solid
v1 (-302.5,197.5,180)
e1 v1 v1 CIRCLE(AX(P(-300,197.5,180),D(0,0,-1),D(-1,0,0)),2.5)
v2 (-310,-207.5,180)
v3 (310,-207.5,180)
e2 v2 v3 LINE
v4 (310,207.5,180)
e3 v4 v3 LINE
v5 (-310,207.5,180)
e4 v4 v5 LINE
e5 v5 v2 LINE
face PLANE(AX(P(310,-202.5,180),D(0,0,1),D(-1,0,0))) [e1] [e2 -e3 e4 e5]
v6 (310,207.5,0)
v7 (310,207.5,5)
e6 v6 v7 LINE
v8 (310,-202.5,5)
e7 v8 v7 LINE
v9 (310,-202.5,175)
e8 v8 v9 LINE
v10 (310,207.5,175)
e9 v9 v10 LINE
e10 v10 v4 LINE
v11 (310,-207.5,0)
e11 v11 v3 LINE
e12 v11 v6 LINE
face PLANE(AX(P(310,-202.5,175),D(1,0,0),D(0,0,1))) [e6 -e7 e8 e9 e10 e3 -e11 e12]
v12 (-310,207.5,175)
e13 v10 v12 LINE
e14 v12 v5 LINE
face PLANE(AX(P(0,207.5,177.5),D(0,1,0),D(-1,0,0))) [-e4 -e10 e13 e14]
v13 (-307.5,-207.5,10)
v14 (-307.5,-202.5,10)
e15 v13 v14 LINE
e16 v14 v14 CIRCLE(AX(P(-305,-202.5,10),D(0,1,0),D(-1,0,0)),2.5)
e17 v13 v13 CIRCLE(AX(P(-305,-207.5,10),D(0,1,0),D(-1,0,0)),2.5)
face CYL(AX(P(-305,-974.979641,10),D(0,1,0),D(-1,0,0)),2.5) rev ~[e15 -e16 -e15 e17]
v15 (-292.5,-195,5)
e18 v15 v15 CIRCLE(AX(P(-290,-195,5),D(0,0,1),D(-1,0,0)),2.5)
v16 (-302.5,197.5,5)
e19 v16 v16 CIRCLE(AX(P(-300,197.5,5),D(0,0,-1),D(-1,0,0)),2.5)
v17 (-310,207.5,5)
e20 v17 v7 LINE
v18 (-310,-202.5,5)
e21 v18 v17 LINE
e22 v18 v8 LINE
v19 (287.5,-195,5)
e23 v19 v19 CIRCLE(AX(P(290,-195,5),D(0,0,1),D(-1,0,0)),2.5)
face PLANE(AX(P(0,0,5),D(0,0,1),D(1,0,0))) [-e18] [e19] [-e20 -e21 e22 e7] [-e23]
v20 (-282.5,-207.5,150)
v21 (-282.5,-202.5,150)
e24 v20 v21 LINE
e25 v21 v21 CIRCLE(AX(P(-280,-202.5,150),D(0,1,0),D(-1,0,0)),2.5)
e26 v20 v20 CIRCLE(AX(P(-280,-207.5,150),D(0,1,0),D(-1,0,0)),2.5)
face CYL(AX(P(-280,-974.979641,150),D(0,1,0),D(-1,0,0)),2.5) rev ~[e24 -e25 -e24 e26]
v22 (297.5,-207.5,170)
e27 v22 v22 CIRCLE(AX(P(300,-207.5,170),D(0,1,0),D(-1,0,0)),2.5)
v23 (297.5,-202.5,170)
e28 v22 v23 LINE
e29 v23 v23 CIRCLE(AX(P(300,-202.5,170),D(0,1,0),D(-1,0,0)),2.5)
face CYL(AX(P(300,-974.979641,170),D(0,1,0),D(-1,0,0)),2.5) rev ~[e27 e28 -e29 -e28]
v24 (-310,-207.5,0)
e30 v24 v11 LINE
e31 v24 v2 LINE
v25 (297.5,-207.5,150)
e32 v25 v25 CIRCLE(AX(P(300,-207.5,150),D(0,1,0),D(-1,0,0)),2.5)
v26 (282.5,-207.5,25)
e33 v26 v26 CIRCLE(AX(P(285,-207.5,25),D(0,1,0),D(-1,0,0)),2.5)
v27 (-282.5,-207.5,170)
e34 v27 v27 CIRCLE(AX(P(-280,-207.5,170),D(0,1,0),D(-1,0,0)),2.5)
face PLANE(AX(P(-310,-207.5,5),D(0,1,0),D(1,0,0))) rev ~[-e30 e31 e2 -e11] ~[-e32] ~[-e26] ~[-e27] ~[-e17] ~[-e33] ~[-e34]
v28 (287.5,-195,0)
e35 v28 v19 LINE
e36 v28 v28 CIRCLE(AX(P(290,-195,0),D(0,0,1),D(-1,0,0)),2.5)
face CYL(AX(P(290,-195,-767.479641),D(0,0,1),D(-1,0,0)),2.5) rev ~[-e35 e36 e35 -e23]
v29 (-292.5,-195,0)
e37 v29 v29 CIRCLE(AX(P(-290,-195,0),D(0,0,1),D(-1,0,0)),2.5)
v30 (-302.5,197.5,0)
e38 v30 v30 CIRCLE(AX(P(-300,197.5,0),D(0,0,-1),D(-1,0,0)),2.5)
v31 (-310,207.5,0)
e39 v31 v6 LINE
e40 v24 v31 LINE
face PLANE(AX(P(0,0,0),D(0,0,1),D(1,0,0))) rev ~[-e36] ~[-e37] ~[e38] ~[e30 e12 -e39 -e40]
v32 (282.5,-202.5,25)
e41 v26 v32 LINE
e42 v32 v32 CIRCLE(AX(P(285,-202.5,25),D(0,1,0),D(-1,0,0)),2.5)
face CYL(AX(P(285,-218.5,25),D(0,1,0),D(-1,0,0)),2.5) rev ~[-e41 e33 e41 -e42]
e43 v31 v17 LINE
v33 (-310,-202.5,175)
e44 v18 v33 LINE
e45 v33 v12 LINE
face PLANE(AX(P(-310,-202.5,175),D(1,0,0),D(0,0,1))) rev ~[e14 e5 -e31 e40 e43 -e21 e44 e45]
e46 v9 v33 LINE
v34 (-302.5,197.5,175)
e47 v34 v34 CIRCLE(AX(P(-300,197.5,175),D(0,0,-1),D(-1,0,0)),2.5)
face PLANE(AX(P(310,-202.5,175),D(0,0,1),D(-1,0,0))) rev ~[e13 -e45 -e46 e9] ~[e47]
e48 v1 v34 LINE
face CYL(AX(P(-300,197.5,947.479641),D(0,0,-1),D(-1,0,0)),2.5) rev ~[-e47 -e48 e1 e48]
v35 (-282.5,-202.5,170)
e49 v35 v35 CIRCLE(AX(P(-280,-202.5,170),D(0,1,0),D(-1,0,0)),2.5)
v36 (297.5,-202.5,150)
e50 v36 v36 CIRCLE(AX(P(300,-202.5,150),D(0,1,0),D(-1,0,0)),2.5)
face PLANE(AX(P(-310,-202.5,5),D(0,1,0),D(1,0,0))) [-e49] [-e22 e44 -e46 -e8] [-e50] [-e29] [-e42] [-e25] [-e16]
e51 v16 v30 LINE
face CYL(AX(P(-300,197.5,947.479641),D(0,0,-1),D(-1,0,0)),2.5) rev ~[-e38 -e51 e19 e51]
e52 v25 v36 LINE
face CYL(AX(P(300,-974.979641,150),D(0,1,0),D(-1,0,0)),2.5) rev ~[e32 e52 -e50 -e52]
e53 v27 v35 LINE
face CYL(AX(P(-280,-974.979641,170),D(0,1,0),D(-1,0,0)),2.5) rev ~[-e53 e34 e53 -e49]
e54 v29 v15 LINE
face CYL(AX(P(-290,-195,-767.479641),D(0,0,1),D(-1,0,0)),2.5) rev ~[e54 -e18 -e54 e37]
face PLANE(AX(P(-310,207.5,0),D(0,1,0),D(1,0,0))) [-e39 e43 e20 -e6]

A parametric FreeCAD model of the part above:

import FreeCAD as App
import Part
import Sketcher
from FreeCAD import Vector
Q = App.Units.Quantity

doc = App.newDocument("Part")
body = doc.addObject("PartDesign::Body", "Body")

# Sketch on XY plane
sketch1 = body.newObject("Sketcher::SketchObject", "Sketch")
sketch1.AttachmentSupport = (doc.getObject("XY_Plane"), [""])
sketch1.MapMode = "FlatFace"
sketch1.addGeometry([
    Part.LineSegment(Vector(-310, 208, 0), Vector(-310, -208, 0)),
    Part.LineSegment(Vector(-310, -208, 0), Vector(310, -208, 0)),
    Part.LineSegment(Vector(310, -208, 0), Vector(310, 208, 0)),
    Part.LineSegment(Vector(310, 208, 0), Vector(-310, 208, 0)),
], False)
sketch1.addConstraint([
    Sketcher.Constraint("Coincident", 0, 2, 1, 1),
    Sketcher.Constraint("Coincident", 1, 2, 2, 1),
    Sketcher.Constraint("Coincident", 2, 2, 3, 1),
    Sketcher.Constraint("Coincident", 3, 2, 0, 1),
    Sketcher.Constraint("Vertical", 0),
    Sketcher.Constraint("Horizontal", 1),
    Sketcher.Constraint("Vertical", 2),
    Sketcher.Constraint("Horizontal", 3),
    Sketcher.Constraint("Symmetric", 0, 2, 2, 2, -1, 1),
    Sketcher.Constraint("DistanceX", 1, 1, 1, 2, Q("620 mm")),
    Sketcher.Constraint("DistanceY", 0, 2, 0, 1, Q("415 mm")),
])
pad1 = body.newObject("PartDesign::Pad", "Pad")
pad1.Profile = sketch1
pad1.Length = 5

# Sketch on XY plane
sketch2 = body.newObject("Sketcher::SketchObject", "Sketch001")
sketch2.AttachmentSupport = (doc.getObject("XY_Plane"), [""])
sketch2.MapMode = "FlatFace"
sketch2.AttachmentOffset = App.Placement(Vector(0, 0, 5), App.Rotation())
sketch2.addGeometry([
    Part.LineSegment(Vector(-310, -202, 0), Vector(-310, -208, 0)),
    Part.LineSegment(Vector(-310, -208, 0), Vector(310, -208, 0)),
    Part.LineSegment(Vector(310, -208, 0), Vector(310, -202, 0)),
    Part.LineSegment(Vector(310, -202, 0), Vector(-310, -202, 0)),
], False)
sketch2.addConstraint([
    Sketcher.Constraint("Coincident", 0, 2, 1, 1),
    Sketcher.Constraint("Coincident", 1, 2, 2, 1),
    Sketcher.Constraint("Coincident", 2, 2, 3, 1),
    Sketcher.Constraint("Coincident", 3, 2, 0, 1),
    Sketcher.Constraint("Vertical", 0),
    Sketcher.Constraint("Horizontal", 1),
    Sketcher.Constraint("Vertical", 2),
    Sketcher.Constraint("Horizontal", 3),
    Sketcher.Constraint("DistanceX", 1, 1, 1, 2, Q("620 mm")),
    Sketcher.Constraint("DistanceY", 0, 2, 0, 1, Q("5 mm")),
    Sketcher.Constraint("DistanceX", 0, 2, -1, 1, Q("310 mm")),
    Sketcher.Constraint("DistanceY", 0, 2, -1, 1, Q("207.5 mm")),
])
pad2 = body.newObject("PartDesign::Pad", "Pad001")
pad2.Profile = sketch2
pad2.Length = 175

# Sketch on XZ plane
sketch3 = body.newObject("Sketcher::SketchObject", "Sketch002")
sketch3.AttachmentSupport = (doc.getObject("XZ_Plane"), [""])
sketch3.MapMode = "FlatFace"
sketch3.AttachmentOffset = App.Placement(Vector(0, 0, 207.5), App.Rotation())
sketch3.addGeometry(Part.Circle(Vector(300, 170, 0), Vector(0, 0, 1), 2.5), False)
sketch3.addConstraint([
    Sketcher.Constraint("Diameter", 0, Q("5 mm")),
    Sketcher.Constraint("DistanceX", -1, 1, 0, 3, Q("300 mm")),
    Sketcher.Constraint("DistanceY", -1, 1, 0, 3, Q("170 mm")),
])
doc.recompute()
hole = body.newObject("PartDesign::Hole", "Hole")
hole.Profile = sketch3
hole.ThreadType = "None"
hole.Diameter = 5
hole.DepthType = "ThroughAll"

# Sketch on XZ plane
sketch4 = body.newObject("Sketcher::SketchObject", "Sketch003")
sketch4.AttachmentSupport = (doc.getObject("XZ_Plane"), [""])
sketch4.MapMode = "FlatFace"
sketch4.AttachmentOffset = App.Placement(Vector(0, 0, 207.5), App.Rotation())
sketch4.addGeometry(Part.Circle(Vector(300, 150, 0), Vector(0, 0, 1), 2.5), False)
sketch4.addConstraint([
    Sketcher.Constraint("Diameter", 0, Q("5 mm")),
    Sketcher.Constraint("DistanceX", -1, 1, 0, 3, Q("300 mm")),
    Sketcher.Constraint("DistanceY", -1, 1, 0, 3, Q("150 mm")),
])
doc.recompute()
hole2 = body.newObject("PartDesign::Hole", "Hole001")
hole2.Profile = sketch4
hole2.ThreadType = "None"
hole2.Diameter = 5
hole2.DepthType = "ThroughAll"

# Sketch on XZ plane
sketch5 = body.newObject("Sketcher::SketchObject", "Sketch004")
sketch5.AttachmentSupport = (doc.getObject("XZ_Plane"), [""])
sketch5.MapMode = "FlatFace"
sketch5.AttachmentOffset = App.Placement(Vector(0, 0, 207.5), App.Rotation())
sketch5.addGeometry(Part.Circle(Vector(-280, 170, 0), Vector(0, 0, 1), 2.5), False)
sketch5.addConstraint([
    Sketcher.Constraint("Diameter", 0, Q("5 mm")),
    Sketcher.Constraint("DistanceX", 0, 3, -1, 1, Q("280 mm")),
    Sketcher.Constraint("DistanceY", -1, 1, 0, 3, Q("170 mm")),
])
doc.recompute()
hole3 = body.newObject("PartDesign::Hole", "Hole002")
hole3.Profile = sketch5
hole3.ThreadType = "None"
hole3.Diameter = 5
hole3.DepthType = "ThroughAll"

# Sketch on XZ plane
sketch6 = body.newObject("Sketcher::SketchObject", "Sketch005")
sketch6.AttachmentSupport = (doc.getObject("XZ_Plane"), [""])
sketch6.MapMode = "FlatFace"
sketch6.AttachmentOffset = App.Placement(Vector(0, 0, 207.5), App.Rotation())
sketch6.addGeometry(Part.Circle(Vector(-280, 150, 0), Vector(0, 0, 1), 2.5), False)
sketch6.addConstraint([
    Sketcher.Constraint("Diameter", 0, Q("5 mm")),
    Sketcher.Constraint("DistanceX", 0, 3, -1, 1, Q("280 mm")),
    Sketcher.Constraint("DistanceY", -1, 1, 0, 3, Q("150 mm")),
])
doc.recompute()
hole4 = body.newObject("PartDesign::Hole", "Hole003")
hole4.Profile = sketch6
hole4.ThreadType = "None"
hole4.Diameter = 5
hole4.DepthType = "ThroughAll"

# Sketch on XZ plane
sketch7 = body.newObject("Sketcher::SketchObject", "Sketch006")
sketch7.AttachmentSupport = (doc.getObject("XZ_Plane"), [""])
sketch7.MapMode = "FlatFace"
sketch7.AttachmentOffset = App.Placement(Vector(0, 0, 207.5), App.Rotation())
sketch7.addGeometry(Part.Circle(Vector(-305, 10, 0), Vector(0, 0, 1), 2.5), False)
sketch7.addConstraint([
    Sketcher.Constraint("Diameter", 0, Q("5 mm")),
    Sketcher.Constraint("DistanceX", 0, 3, -1, 1, Q("305 mm")),
    Sketcher.Constraint("DistanceY", -1, 1, 0, 3, Q("10 mm")),
])
doc.recompute()
hole5 = body.newObject("PartDesign::Hole", "Hole004")
hole5.Profile = sketch7
hole5.ThreadType = "None"
hole5.Diameter = 5
hole5.DepthType = "ThroughAll"

# Sketch on XY plane
sketch8 = body.newObject("Sketcher::SketchObject", "Sketch007")
sketch8.AttachmentSupport = (doc.getObject("XY_Plane"), [""])
sketch8.MapMode = "FlatFace"
sketch8.addGeometry(Part.Circle(Vector(290, -195, 0), Vector(0, 0, 1), 2.5), False)
sketch8.addConstraint([
    Sketcher.Constraint("Diameter", 0, Q("5 mm")),
    Sketcher.Constraint("DistanceX", -1, 1, 0, 3, Q("290 mm")),
    Sketcher.Constraint("DistanceY", 0, 3, -1, 1, Q("195 mm")),
])
doc.recompute()
hole6 = body.newObject("PartDesign::Hole", "Hole005")
hole6.Profile = sketch8
hole6.ThreadType = "None"
hole6.Diameter = 5
hole6.DepthType = "ThroughAll"
hole6.Reversed = True

# Sketch on XY plane
sketch9 = body.newObject("Sketcher::SketchObject", "Sketch008")
sketch9.AttachmentSupport = (doc.getObject("XY_Plane"), [""])
sketch9.MapMode = "FlatFace"
sketch9.addGeometry(Part.Circle(Vector(-290, -195, 0), Vector(0, 0, 1), 2.5), False)
sketch9.addConstraint([
    Sketcher.Constraint("Diameter", 0, Q("5 mm")),
    Sketcher.Constraint("DistanceX", 0, 3, -1, 1, Q("290 mm")),
    Sketcher.Constraint("DistanceY", 0, 3, -1, 1, Q("195 mm")),
])
doc.recompute()
hole7 = body.newObject("PartDesign::Hole", "Hole006")
hole7.Profile = sketch9
hole7.ThreadType = "None"
hole7.Diameter = 5
hole7.DepthType = "ThroughAll"
hole7.Reversed = True

# Sketch on XZ plane
sketch10 = body.newObject("Sketcher::SketchObject", "Sketch009")
sketch10.AttachmentSupport = (doc.getObject("XZ_Plane"), [""])
sketch10.MapMode = "FlatFace"
sketch10.AttachmentOffset = App.Placement(Vector(0, 0, 207.5), App.Rotation())
sketch10.addGeometry(Part.Circle(Vector(285, 25, 0), Vector(0, 0, 1), 2.5), False)
sketch10.addConstraint([
    Sketcher.Constraint("Diameter", 0, Q("5 mm")),
    Sketcher.Constraint("DistanceX", -1, 1, 0, 3, Q("285 mm")),
    Sketcher.Constraint("DistanceY", -1, 1, 0, 3, Q("25 mm")),
])
doc.recompute()
hole8 = body.newObject("PartDesign::Hole", "Hole007")
hole8.Profile = sketch10
hole8.ThreadType = "None"
hole8.Diameter = 5
hole8.DepthType = "Dimension"
hole8.Depth = 11
hole8.DrillPoint = "Flat"

# Sketch on XZ plane
sketch11 = body.newObject("Sketcher::SketchObject", "Sketch010")
sketch11.AttachmentSupport = (doc.getObject("XZ_Plane"), [""])
sketch11.MapMode = "FlatFace"
sketch11.AttachmentOffset = App.Placement(Vector(0, 0, 202.5), App.Rotation())
sketch11.addGeometry([
    Part.LineSegment(Vector(310, 180, 0), Vector(310, 175, 0)),
    Part.LineSegment(Vector(310, 175, 0), Vector(-310, 175, 0)),
    Part.LineSegment(Vector(-310, 175, 0), Vector(-310, 180, 0)),
    Part.LineSegment(Vector(-310, 180, 0), Vector(310, 180, 0)),
], False)
sketch11.addConstraint([
    Sketcher.Constraint("Coincident", 0, 2, 1, 1),
    Sketcher.Constraint("Coincident", 1, 2, 2, 1),
    Sketcher.Constraint("Coincident", 2, 2, 3, 1),
    Sketcher.Constraint("Coincident", 3, 2, 0, 1),
    Sketcher.Constraint("Vertical", 0),
    Sketcher.Constraint("Horizontal", 1),
    Sketcher.Constraint("Vertical", 2),
    Sketcher.Constraint("Horizontal", 3),
    Sketcher.Constraint("DistanceX", 1, 2, 1, 1, Q("620 mm")),
    Sketcher.Constraint("DistanceY", 0, 2, 0, 1, Q("5 mm")),
    Sketcher.Constraint("DistanceX", -1, 1, 0, 2, Q("310 mm")),
    Sketcher.Constraint("DistanceY", -1, 1, 0, 2, Q("175 mm")),
])
pad3 = body.newObject("PartDesign::Pad", "Pad002")
pad3.Profile = sketch11
pad3.Length = 410
pad3.Reversed = True

# Sketch on XY plane
sketch12 = body.newObject("Sketcher::SketchObject", "Sketch011")
sketch12.AttachmentSupport = (doc.getObject("XY_Plane"), [""])
sketch12.MapMode = "FlatFace"
sketch12.AttachmentOffset = App.Placement(Vector(0, 0, 180), App.Rotation())
sketch12.addGeometry(Part.Circle(Vector(-300, 197.5, 0), Vector(0, 0, 1), 2.5), False)
sketch12.addConstraint([
    Sketcher.Constraint("Diameter", 0, Q("5 mm")),
    Sketcher.Constraint("DistanceX", 0, 3, -1, 1, Q("300 mm")),
    Sketcher.Constraint("DistanceY", -1, 1, 0, 3, Q("197.5 mm")),
])
doc.recompute()
hole9 = body.newObject("PartDesign::Hole", "Hole008")
hole9.Profile = sketch12
hole9.ThreadType = "None"
hole9.Diameter = 5
hole9.DepthType = "ThroughAll"

doc.recompute()
